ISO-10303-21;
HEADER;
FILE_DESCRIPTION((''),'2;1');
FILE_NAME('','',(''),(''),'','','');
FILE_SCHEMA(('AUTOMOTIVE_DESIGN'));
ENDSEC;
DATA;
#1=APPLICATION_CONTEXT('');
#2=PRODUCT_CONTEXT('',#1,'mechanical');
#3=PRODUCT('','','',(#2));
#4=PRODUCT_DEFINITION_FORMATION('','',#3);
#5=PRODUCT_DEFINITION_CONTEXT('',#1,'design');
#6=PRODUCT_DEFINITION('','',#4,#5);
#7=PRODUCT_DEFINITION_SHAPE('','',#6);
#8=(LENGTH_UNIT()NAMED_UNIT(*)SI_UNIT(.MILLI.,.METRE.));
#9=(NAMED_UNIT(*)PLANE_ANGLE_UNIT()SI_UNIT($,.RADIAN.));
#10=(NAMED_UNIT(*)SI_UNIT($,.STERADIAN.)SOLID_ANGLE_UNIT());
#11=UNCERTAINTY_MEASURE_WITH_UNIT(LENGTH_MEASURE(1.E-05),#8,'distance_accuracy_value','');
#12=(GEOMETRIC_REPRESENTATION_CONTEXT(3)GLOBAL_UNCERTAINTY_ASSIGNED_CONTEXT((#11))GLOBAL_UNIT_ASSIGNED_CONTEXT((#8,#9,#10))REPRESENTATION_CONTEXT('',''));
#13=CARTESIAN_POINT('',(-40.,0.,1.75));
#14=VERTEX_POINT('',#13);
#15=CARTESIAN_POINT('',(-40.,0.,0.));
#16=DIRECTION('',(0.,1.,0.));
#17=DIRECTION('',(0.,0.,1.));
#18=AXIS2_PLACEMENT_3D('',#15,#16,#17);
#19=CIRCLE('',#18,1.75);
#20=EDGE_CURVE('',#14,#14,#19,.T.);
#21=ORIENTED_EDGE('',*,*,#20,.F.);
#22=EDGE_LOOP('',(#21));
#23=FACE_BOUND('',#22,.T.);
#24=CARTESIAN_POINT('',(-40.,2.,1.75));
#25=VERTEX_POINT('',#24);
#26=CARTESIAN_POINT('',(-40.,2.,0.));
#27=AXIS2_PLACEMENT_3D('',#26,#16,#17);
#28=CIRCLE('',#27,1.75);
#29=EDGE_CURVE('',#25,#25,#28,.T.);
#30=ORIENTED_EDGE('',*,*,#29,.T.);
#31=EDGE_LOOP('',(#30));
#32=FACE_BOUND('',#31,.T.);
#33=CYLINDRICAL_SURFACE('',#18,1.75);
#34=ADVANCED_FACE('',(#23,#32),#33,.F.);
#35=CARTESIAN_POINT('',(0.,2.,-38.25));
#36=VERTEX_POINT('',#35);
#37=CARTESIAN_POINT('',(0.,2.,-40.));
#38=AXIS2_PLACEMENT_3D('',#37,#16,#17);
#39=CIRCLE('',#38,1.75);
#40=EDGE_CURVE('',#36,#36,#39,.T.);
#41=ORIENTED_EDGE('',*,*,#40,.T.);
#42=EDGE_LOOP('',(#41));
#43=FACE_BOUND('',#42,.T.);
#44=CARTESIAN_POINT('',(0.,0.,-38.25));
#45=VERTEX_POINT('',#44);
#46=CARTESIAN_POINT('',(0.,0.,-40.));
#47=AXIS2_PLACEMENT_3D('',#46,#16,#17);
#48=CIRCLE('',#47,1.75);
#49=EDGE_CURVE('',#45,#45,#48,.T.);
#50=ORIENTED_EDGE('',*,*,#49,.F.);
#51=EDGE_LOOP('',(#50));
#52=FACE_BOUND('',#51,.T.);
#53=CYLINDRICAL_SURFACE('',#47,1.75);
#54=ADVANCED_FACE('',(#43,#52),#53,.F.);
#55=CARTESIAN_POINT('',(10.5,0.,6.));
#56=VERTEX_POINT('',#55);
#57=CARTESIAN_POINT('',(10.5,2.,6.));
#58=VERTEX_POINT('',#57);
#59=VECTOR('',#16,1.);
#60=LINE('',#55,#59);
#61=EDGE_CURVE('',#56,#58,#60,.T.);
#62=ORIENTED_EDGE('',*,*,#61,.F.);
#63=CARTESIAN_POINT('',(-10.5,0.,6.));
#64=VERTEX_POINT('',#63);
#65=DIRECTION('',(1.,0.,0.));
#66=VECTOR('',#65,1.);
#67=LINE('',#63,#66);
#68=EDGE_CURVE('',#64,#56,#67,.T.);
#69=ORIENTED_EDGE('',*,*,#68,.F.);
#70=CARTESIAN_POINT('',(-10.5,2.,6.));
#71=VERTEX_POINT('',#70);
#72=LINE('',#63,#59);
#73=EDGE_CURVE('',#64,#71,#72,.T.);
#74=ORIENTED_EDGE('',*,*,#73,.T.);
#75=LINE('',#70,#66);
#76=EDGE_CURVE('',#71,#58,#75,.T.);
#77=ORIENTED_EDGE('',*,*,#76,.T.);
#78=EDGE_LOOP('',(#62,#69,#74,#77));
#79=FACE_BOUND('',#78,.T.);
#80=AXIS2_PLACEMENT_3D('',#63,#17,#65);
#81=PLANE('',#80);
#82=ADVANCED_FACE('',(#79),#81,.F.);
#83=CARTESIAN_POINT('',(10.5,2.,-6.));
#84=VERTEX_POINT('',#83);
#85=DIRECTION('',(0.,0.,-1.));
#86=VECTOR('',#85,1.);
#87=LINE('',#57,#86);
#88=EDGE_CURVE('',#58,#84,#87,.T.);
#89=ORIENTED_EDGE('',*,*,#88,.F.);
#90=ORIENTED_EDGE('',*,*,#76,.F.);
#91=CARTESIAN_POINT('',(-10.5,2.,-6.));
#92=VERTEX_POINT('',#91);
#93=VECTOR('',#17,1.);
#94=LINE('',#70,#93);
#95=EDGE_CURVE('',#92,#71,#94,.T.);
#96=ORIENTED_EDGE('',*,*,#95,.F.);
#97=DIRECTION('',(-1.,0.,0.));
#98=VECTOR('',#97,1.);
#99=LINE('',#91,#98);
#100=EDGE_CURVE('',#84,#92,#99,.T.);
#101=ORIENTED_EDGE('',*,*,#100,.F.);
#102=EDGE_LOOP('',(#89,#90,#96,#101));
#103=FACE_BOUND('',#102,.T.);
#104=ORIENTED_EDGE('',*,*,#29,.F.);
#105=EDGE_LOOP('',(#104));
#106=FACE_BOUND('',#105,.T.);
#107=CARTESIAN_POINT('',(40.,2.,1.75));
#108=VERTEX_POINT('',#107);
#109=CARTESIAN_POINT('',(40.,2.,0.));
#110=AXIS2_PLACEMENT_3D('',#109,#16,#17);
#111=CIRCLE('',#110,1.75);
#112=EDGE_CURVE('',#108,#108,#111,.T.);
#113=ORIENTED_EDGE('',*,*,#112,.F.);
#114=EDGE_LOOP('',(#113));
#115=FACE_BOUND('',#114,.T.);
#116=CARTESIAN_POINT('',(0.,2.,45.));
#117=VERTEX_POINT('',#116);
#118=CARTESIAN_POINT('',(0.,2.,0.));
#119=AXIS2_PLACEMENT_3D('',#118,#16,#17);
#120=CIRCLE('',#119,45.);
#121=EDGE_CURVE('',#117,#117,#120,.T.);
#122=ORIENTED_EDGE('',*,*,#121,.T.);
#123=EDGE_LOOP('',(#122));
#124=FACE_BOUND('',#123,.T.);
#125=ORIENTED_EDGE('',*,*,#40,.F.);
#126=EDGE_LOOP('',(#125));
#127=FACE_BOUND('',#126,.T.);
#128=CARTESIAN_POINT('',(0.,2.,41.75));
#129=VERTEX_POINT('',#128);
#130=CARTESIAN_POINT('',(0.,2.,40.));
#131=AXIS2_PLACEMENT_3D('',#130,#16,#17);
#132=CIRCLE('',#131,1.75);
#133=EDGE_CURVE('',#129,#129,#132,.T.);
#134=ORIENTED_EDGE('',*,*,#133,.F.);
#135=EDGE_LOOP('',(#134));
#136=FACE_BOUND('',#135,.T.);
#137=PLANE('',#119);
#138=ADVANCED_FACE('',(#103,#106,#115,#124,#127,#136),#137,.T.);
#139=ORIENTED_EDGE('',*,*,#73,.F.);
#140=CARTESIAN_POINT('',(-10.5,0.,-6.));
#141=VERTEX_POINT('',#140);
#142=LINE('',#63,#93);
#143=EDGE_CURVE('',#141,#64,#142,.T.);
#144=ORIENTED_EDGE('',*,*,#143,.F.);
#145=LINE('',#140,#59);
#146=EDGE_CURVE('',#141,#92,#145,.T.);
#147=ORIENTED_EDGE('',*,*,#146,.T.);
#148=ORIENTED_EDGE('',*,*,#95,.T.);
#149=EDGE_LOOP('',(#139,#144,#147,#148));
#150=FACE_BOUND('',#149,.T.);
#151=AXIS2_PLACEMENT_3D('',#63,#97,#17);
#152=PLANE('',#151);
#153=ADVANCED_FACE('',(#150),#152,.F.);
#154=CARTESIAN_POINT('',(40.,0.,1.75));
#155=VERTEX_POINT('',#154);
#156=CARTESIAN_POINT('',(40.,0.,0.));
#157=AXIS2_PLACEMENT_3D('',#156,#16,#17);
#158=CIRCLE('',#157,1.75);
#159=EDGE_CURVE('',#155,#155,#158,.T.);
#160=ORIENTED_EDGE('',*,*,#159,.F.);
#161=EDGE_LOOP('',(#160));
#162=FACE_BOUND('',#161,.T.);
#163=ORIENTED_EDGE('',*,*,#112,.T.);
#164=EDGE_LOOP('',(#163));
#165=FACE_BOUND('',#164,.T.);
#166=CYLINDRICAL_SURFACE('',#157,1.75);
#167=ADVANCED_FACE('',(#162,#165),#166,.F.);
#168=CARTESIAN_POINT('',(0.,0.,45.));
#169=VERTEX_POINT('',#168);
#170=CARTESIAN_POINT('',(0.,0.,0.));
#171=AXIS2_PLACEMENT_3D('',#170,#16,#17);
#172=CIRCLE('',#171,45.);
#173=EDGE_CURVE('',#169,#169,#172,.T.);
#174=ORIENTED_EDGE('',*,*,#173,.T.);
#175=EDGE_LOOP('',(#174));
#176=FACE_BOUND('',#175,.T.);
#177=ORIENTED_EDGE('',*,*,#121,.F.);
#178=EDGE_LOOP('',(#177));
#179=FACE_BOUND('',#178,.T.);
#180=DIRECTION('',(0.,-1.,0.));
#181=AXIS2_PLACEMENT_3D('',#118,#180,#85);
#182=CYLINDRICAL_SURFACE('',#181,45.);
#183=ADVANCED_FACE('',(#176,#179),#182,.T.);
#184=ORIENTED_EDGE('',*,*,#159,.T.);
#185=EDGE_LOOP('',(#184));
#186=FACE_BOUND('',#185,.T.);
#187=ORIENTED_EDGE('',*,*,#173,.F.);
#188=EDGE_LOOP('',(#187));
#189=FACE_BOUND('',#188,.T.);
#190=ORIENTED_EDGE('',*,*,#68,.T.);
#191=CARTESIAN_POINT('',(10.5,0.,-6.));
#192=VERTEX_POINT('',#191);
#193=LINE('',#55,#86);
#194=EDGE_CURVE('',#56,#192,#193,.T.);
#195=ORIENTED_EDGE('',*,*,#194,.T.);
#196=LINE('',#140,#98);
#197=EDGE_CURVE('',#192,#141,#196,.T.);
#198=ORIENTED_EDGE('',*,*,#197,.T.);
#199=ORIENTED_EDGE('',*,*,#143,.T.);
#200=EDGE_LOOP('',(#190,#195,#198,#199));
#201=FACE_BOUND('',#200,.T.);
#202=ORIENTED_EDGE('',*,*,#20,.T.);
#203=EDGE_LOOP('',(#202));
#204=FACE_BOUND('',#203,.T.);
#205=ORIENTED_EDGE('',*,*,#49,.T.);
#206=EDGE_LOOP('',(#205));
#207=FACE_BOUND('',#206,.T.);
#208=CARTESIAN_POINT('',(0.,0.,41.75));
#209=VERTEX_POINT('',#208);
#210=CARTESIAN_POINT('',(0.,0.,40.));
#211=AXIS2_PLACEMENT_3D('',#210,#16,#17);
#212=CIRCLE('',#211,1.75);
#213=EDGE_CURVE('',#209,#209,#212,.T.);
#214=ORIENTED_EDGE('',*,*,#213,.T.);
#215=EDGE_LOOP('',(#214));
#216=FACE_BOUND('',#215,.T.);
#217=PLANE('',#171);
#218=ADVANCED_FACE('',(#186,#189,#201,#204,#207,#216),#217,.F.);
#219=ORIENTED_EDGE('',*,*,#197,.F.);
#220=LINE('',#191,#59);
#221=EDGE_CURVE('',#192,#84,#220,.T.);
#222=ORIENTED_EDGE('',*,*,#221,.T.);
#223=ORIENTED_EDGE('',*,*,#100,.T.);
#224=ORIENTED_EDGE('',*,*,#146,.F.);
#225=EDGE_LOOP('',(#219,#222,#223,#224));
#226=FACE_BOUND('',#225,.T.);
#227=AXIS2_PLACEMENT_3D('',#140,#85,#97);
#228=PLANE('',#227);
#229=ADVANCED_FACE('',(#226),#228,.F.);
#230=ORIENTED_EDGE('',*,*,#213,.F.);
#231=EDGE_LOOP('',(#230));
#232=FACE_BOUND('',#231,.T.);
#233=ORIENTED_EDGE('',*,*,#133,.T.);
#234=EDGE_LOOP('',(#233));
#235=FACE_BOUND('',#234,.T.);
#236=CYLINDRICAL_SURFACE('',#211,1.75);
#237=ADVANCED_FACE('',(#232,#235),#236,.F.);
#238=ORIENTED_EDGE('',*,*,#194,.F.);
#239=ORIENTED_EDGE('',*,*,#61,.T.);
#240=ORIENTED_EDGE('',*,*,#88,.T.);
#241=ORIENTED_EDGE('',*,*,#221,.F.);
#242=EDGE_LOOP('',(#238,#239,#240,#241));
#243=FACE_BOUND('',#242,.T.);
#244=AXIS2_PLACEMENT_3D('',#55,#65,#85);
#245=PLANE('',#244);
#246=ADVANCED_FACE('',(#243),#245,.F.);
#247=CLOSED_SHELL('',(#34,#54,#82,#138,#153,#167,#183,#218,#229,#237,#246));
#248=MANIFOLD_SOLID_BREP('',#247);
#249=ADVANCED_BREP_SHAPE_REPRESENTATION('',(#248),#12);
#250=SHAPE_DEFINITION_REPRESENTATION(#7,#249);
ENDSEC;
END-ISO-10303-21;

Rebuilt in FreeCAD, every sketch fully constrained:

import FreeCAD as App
import Part
import Sketcher

V = App.Vector
Q = App.Units.Quantity

doc = App.newDocument("Part")
body = doc.addObject("PartDesign::Body", "Body")

# Sketch on XZ plane
sketch1 = doc.addObject("Sketcher::SketchObject", "Sketch")
body.addObject(sketch1)
sketch1.AttachmentSupport = (doc.XZ_Plane, [""])
sketch1.MapMode = "FlatFace"
sketch1.addGeometry(Part.Circle(V(0, 0, 0), V(0, 0, 1), 45), False)
sketch1.addConstraint([
    Sketcher.Constraint("Coincident", 0, 3, -1, 1),
    Sketcher.Constraint("Diameter", 0, Q("90 mm")),
])
pad1 = doc.addObject("PartDesign::Pad", "Pad")
body.addObject(pad1)
pad1.Profile = sketch1
pad1.Length = 2
pad1.Reversed = True

# Sketch on XZ plane
sketch2 = doc.addObject("Sketcher::SketchObject", "Sketch001")
body.addObject(sketch2)
sketch2.AttachmentSupport = (doc.XZ_Plane, [""])
sketch2.MapMode = "FlatFace"
sketch2.AttachmentOffset = App.Placement(V(0, 0, -2), App.Rotation())
sketch2.addGeometry([
    Part.Circle(V(0, -40, 0), V(0, 0, 1), 1.75),
    Part.Circle(V(40, 0, 0), V(0, 0, 1), 1.75),
    Part.Circle(V(0, 40, 0), V(0, 0, 1), 1.75),
    Part.Circle(V(-40, 0, 0), V(0, 0, 1), 1.75),
], False)
sketch2.addConstraint([
    Sketcher.Constraint("Equal", 0, 1),
    Sketcher.Constraint("Equal", 1, 2),
    Sketcher.Constraint("Equal", 2, 3),
    Sketcher.Constraint("Symmetric", 0, 3, 2, 3, -1, 1),
    Sketcher.Constraint("Symmetric", 1, 3, 3, 3, -1, 1),
    Sketcher.Constraint("PointOnObject", 0, 3, -2),
    Sketcher.Constraint("PointOnObject", 1, 3, -1),
    Sketcher.Constraint("Diameter", 0, Q("3.5 mm")),
    Sketcher.Constraint("DistanceY", 0, 3, -1, 1, Q("40 mm")),
    Sketcher.Constraint("DistanceX", -1, 1, 1, 3, Q("40 mm")),
])
pocket1 = doc.addObject("PartDesign::Pocket", "Pocket")
body.addObject(pocket1)
pocket1.Profile = sketch2
pocket1.Type = "ThroughAll"
pocket1.Reversed = True

# Sketch on XZ plane
sketch3 = doc.addObject("Sketcher::SketchObject", "Sketch002")
body.addObject(sketch3)
sketch3.AttachmentSupport = (doc.XZ_Plane, [""])
sketch3.MapMode = "FlatFace"
sketch3.AttachmentOffset = App.Placement(V(0, 0, -2), App.Rotation())
sketch3.addGeometry([
    Part.LineSegment(V(-10.5, -6, 0), V(-10.5, 6, 0)),
    Part.LineSegment(V(-10.5, 6, 0), V(10.5, 6, 0)),
    Part.LineSegment(V(10.5, 6, 0), V(10.5, -6, 0)),
    Part.LineSegment(V(10.5, -6, 0), V(-10.5, -6, 0)),
], False)
sketch3.addConstraint([
    Sketcher.Constraint("Coincident", 0, 2, 1, 1),
    Sketcher.Constraint("Coincident", 1, 2, 2, 1),
    Sketcher.Constraint("Coincident", 2, 2, 3, 1),
    Sketcher.Constraint("Coincident", 3, 2, 0, 1),
    Sketcher.Constraint("Vertical", 0),
    Sketcher.Constraint("Horizontal", 1),
    Sketcher.Constraint("Vertical", 2),
    Sketcher.Constraint("Horizontal", 3),
    Sketcher.Constraint("Symmetric", 0, 2, 2, 2, -1, 1),
    Sketcher.Constraint("DistanceX", 1, 1, 1, 2, Q("21 mm")),
    Sketcher.Constraint("DistanceY", 0, 1, 0, 2, Q("12 mm")),
])
pocket2 = doc.addObject("PartDesign::Pocket", "Pocket001")
body.addObject(pocket2)
pocket2.Profile = sketch3
pocket2.Type = "ThroughAll"
pocket2.Reversed = True

doc.recompute()
